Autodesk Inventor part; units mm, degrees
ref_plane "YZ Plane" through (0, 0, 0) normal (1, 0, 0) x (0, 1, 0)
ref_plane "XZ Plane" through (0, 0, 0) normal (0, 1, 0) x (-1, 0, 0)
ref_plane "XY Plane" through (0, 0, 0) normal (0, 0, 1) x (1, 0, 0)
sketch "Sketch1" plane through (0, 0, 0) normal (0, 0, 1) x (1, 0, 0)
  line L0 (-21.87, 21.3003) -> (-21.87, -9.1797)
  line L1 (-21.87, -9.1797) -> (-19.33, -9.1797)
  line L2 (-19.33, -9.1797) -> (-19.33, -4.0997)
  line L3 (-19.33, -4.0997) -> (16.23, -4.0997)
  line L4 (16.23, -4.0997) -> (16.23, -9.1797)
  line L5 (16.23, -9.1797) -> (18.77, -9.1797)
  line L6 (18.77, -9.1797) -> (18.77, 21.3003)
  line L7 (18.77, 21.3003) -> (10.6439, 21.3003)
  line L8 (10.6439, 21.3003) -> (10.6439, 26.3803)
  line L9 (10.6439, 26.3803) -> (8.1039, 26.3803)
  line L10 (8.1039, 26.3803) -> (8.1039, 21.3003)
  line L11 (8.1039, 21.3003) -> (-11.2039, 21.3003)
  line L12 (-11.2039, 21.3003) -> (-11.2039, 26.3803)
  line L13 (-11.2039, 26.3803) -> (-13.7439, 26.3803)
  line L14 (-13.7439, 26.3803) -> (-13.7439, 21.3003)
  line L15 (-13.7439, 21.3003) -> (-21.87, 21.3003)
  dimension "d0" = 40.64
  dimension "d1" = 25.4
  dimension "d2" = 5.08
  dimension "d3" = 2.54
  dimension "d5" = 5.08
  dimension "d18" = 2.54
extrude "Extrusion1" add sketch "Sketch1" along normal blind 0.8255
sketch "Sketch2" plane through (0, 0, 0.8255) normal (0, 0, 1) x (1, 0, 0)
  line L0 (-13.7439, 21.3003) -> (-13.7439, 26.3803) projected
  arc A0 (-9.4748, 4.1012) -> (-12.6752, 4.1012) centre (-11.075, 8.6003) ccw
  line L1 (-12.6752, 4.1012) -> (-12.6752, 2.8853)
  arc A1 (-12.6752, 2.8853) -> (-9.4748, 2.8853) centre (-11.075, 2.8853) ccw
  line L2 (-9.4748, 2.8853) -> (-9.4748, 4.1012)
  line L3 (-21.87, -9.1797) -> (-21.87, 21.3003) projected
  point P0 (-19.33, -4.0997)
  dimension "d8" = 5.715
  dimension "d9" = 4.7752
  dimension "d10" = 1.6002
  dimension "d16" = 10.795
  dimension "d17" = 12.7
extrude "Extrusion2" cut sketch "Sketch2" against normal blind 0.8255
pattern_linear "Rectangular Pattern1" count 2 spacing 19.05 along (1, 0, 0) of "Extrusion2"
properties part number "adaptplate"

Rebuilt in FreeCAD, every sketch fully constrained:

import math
import FreeCAD as App
import Part
import Sketcher

V = App.Vector
Q = App.Units.Quantity

doc = App.newDocument("Part")
body = doc.addObject("PartDesign::Body", "Body")

# Sketch on XY plane
sketch1 = doc.addObject("Sketcher::SketchObject", "Sketch")
body.addObject(sketch1)
sketch1.AttachmentSupport = (doc.XY_Plane, [""])
sketch1.MapMode = "FlatFace"
sketch1.addGeometry([
    Part.LineSegment(V(-13.7, 21.3, 0), V(-21.9, 21.3, 0)),  # 0
    Part.LineSegment(V(-21.9, 21.3, 0), V(-21.9, -9.2, 0)),  # 1
    Part.LineSegment(V(-21.9, -9.2, 0), V(-19.3, -9.2, 0)),  # 2
    Part.LineSegment(V(-19.3, -9.2, 0), V(-19.3, -4.1, 0)),  # 3
    Part.LineSegment(V(-19.3, -4.1, 0), V(16.2, -4.1, 0)),  # 4
    Part.LineSegment(V(16.2, -4.1, 0), V(16.2, -9.2, 0)),  # 5
    Part.LineSegment(V(16.2, -9.2, 0), V(18.8, -9.2, 0)),  # 6
    Part.LineSegment(V(18.8, -9.2, 0), V(18.8, 21.3, 0)),  # 7
    Part.LineSegment(V(18.8, 21.3, 0), V(10.6, 21.3, 0)),  # 8
    Part.LineSegment(V(10.6, 21.3, 0), V(10.6, 26.4, 0)),  # 9
    Part.LineSegment(V(10.6, 26.4, 0), V(8.1, 26.4, 0)),  # 10
    Part.LineSegment(V(8.1, 26.4, 0), V(8.1, 21.3, 0)),  # 11
    Part.LineSegment(V(8.1, 21.3, 0), V(-11.2, 21.3, 0)),  # 12
    Part.LineSegment(V(-11.2, 21.3, 0), V(-11.2, 26.4, 0)),  # 13
    Part.LineSegment(V(-11.2, 26.4, 0), V(-13.7, 26.4, 0)),  # 14
    Part.LineSegment(V(-13.7, 26.4, 0), V(-13.7, 21.3, 0)),  # 15
], False)
sketch1.addConstraint([
    Sketcher.Constraint("Coincident", 0, 2, 1, 1),
    Sketcher.Constraint("Coincident", 1, 2, 2, 1),
    Sketcher.Constraint("Coincident", 2, 2, 3, 1),
    Sketcher.Constraint("Coincident", 3, 2, 4, 1),
    Sketcher.Constraint("Coincident", 4, 2, 5, 1),
    Sketcher.Constraint("Coincident", 5, 2, 6, 1),
    Sketcher.Constraint("Coincident", 6, 2, 7, 1),
    Sketcher.Constraint("Coincident", 7, 2, 8, 1),
    Sketcher.Constraint("Coincident", 8, 2, 9, 1),
    Sketcher.Constraint("Coincident", 9, 2, 10, 1),
    Sketcher.Constraint("Coincident", 10, 2, 11, 1),
    Sketcher.Constraint("Coincident", 11, 2, 12, 1),
    Sketcher.Constraint("Coincident", 12, 2, 13, 1),
    Sketcher.Constraint("Coincident", 13, 2, 14, 1),
    Sketcher.Constraint("Coincident", 14, 2, 15, 1),
    Sketcher.Constraint("Coincident", 15, 2, 0, 1),
    Sketcher.Constraint("Horizontal", 0),
    Sketcher.Constraint("Vertical", 1),
    Sketcher.Constraint("Horizontal", 2),
    Sketcher.Constraint("Vertical", 3),
    Sketcher.Constraint("Horizontal", 4),
    Sketcher.Constraint("Vertical", 5),
    Sketcher.Constraint("Horizontal", 6),
    Sketcher.Constraint("Vertical", 7),
    Sketcher.Constraint("Horizontal", 8),
    Sketcher.Constraint("Vertical", 9),
    Sketcher.Constraint("Horizontal", 10),
    Sketcher.Constraint("Vertical", 11),
    Sketcher.Constraint("Horizontal", 12),
    Sketcher.Constraint("Vertical", 13),
    Sketcher.Constraint("Horizontal", 14),
    Sketcher.Constraint("Vertical", 15),
    Sketcher.Constraint("Horizontal", 2, 2, 5, 2),
    Sketcher.Constraint("Horizontal", 0, 2, 7, 2),
    Sketcher.Constraint("Horizontal", 8, 2, 11, 2),
    Sketcher.Constraint("Horizontal", 10, 2, 13, 2),
    Sketcher.Constraint("Equal", 2, 6),
    Sketcher.Constraint("Equal", 0, 8),
    Sketcher.Constraint("Equal", 6, 10),
    Sketcher.Constraint("Equal", 10, 14),
    Sketcher.Constraint("Equal", 5, 9),
    Sketcher.Constraint("DistanceX", 2, 1, 2, 2, Q("0.1 in")),
    Sketcher.Constraint("DistanceY", 3, 1, 3, 2, Q("0.2 in")),
    Sketcher.Constraint("DistanceY", 3, 2, 0, 2, Q("1 in")),
    Sketcher.Constraint("DistanceX", 1, 2, 6, 2, Q("1.6 in")),
    Sketcher.Constraint("DistanceX", 0, 2, 0, 1, 8.126),
    Sketcher.Constraint("DistanceY", -1, 1, 0, 2, Q("0.8386 in")),
    Sketcher.Constraint("DistanceX", 12, 2, -1, 1, Q("0.4411 in")),
])
pad1 = doc.addObject("PartDesign::Pad", "Pad")
body.addObject(pad1)
pad1.Profile = sketch1
pad1.Length = Q("0.0325 in")

# Sketch on XY plane
sketch2 = doc.addObject("Sketcher::SketchObject", "Sketch001")
body.addObject(sketch2)
sketch2.AttachmentSupport = (doc.XY_Plane, [""])
sketch2.MapMode = "FlatFace"
sketch2.AttachmentOffset = App.Placement(V(0, 0, 0.0325 * 25.4), App.Rotation())
sketch2.addGeometry([
    Part.LineSegment(V(-9.5, 2.9, 0), V(-9.5, 4.1, 0)),
    Part.ArcOfCircle(Part.Circle(V(-11.1, 8.6, 0), V(0, 0, 1), 4.8), math.radians(-70), math.radians(250)),
    Part.LineSegment(V(-12.7, 4.1, 0), V(-12.7, 2.9, 0)),
    Part.ArcOfCircle(Part.Circle(V(-11.1, 2.9, 0), V(0, 0, 1), 1.6), math.radians(180), math.radians(360)),
], False)
sketch2.addConstraint([
    Sketcher.Constraint("Coincident", 0, 2, 1, 1),
    Sketcher.Constraint("Coincident", 1, 2, 2, 1),
    Sketcher.Constraint("Tangent", 2, 2, 3, 1),
    Sketcher.Constraint("Tangent", 3, 2, 0, 1),
    Sketcher.Constraint("Vertical", 0),
    Sketcher.Constraint("Vertical", 2),
    Sketcher.Constraint("Horizontal", 0, 2, 1, 2),
    Sketcher.Constraint("Radius", 1, Q("0.188 in")),
    Sketcher.Constraint("Radius", 3, Q("0.063 in")),
    Sketcher.Constraint("DistanceY", 3, 3, 1, 3, Q("0.225 in")),
    Sketcher.Constraint("DistanceY", -1, 1, 1, 3, Q("0.3386 in")),
    Sketcher.Constraint("DistanceX", 1, 3, -1, 1, 11.075),
])
pocket1 = doc.addObject("PartDesign::Pocket", "Pocket")
body.addObject(pocket1)
pocket1.Profile = sketch2
pocket1.Length = Q("0.0325 in")
doc.recompute()

linearpattern = doc.addObject("PartDesign::LinearPattern", "LinearPattern")
body.addObject(linearpattern)
linearpattern.Originals = [pocket1]
linearpattern.Direction = (doc.X_Axis, [""])
linearpattern.Mode = "offset"
linearpattern.Offset = Q("0.75 in")
linearpattern.Occurrences = 2
body.Tip = linearpattern

doc.recompute()
